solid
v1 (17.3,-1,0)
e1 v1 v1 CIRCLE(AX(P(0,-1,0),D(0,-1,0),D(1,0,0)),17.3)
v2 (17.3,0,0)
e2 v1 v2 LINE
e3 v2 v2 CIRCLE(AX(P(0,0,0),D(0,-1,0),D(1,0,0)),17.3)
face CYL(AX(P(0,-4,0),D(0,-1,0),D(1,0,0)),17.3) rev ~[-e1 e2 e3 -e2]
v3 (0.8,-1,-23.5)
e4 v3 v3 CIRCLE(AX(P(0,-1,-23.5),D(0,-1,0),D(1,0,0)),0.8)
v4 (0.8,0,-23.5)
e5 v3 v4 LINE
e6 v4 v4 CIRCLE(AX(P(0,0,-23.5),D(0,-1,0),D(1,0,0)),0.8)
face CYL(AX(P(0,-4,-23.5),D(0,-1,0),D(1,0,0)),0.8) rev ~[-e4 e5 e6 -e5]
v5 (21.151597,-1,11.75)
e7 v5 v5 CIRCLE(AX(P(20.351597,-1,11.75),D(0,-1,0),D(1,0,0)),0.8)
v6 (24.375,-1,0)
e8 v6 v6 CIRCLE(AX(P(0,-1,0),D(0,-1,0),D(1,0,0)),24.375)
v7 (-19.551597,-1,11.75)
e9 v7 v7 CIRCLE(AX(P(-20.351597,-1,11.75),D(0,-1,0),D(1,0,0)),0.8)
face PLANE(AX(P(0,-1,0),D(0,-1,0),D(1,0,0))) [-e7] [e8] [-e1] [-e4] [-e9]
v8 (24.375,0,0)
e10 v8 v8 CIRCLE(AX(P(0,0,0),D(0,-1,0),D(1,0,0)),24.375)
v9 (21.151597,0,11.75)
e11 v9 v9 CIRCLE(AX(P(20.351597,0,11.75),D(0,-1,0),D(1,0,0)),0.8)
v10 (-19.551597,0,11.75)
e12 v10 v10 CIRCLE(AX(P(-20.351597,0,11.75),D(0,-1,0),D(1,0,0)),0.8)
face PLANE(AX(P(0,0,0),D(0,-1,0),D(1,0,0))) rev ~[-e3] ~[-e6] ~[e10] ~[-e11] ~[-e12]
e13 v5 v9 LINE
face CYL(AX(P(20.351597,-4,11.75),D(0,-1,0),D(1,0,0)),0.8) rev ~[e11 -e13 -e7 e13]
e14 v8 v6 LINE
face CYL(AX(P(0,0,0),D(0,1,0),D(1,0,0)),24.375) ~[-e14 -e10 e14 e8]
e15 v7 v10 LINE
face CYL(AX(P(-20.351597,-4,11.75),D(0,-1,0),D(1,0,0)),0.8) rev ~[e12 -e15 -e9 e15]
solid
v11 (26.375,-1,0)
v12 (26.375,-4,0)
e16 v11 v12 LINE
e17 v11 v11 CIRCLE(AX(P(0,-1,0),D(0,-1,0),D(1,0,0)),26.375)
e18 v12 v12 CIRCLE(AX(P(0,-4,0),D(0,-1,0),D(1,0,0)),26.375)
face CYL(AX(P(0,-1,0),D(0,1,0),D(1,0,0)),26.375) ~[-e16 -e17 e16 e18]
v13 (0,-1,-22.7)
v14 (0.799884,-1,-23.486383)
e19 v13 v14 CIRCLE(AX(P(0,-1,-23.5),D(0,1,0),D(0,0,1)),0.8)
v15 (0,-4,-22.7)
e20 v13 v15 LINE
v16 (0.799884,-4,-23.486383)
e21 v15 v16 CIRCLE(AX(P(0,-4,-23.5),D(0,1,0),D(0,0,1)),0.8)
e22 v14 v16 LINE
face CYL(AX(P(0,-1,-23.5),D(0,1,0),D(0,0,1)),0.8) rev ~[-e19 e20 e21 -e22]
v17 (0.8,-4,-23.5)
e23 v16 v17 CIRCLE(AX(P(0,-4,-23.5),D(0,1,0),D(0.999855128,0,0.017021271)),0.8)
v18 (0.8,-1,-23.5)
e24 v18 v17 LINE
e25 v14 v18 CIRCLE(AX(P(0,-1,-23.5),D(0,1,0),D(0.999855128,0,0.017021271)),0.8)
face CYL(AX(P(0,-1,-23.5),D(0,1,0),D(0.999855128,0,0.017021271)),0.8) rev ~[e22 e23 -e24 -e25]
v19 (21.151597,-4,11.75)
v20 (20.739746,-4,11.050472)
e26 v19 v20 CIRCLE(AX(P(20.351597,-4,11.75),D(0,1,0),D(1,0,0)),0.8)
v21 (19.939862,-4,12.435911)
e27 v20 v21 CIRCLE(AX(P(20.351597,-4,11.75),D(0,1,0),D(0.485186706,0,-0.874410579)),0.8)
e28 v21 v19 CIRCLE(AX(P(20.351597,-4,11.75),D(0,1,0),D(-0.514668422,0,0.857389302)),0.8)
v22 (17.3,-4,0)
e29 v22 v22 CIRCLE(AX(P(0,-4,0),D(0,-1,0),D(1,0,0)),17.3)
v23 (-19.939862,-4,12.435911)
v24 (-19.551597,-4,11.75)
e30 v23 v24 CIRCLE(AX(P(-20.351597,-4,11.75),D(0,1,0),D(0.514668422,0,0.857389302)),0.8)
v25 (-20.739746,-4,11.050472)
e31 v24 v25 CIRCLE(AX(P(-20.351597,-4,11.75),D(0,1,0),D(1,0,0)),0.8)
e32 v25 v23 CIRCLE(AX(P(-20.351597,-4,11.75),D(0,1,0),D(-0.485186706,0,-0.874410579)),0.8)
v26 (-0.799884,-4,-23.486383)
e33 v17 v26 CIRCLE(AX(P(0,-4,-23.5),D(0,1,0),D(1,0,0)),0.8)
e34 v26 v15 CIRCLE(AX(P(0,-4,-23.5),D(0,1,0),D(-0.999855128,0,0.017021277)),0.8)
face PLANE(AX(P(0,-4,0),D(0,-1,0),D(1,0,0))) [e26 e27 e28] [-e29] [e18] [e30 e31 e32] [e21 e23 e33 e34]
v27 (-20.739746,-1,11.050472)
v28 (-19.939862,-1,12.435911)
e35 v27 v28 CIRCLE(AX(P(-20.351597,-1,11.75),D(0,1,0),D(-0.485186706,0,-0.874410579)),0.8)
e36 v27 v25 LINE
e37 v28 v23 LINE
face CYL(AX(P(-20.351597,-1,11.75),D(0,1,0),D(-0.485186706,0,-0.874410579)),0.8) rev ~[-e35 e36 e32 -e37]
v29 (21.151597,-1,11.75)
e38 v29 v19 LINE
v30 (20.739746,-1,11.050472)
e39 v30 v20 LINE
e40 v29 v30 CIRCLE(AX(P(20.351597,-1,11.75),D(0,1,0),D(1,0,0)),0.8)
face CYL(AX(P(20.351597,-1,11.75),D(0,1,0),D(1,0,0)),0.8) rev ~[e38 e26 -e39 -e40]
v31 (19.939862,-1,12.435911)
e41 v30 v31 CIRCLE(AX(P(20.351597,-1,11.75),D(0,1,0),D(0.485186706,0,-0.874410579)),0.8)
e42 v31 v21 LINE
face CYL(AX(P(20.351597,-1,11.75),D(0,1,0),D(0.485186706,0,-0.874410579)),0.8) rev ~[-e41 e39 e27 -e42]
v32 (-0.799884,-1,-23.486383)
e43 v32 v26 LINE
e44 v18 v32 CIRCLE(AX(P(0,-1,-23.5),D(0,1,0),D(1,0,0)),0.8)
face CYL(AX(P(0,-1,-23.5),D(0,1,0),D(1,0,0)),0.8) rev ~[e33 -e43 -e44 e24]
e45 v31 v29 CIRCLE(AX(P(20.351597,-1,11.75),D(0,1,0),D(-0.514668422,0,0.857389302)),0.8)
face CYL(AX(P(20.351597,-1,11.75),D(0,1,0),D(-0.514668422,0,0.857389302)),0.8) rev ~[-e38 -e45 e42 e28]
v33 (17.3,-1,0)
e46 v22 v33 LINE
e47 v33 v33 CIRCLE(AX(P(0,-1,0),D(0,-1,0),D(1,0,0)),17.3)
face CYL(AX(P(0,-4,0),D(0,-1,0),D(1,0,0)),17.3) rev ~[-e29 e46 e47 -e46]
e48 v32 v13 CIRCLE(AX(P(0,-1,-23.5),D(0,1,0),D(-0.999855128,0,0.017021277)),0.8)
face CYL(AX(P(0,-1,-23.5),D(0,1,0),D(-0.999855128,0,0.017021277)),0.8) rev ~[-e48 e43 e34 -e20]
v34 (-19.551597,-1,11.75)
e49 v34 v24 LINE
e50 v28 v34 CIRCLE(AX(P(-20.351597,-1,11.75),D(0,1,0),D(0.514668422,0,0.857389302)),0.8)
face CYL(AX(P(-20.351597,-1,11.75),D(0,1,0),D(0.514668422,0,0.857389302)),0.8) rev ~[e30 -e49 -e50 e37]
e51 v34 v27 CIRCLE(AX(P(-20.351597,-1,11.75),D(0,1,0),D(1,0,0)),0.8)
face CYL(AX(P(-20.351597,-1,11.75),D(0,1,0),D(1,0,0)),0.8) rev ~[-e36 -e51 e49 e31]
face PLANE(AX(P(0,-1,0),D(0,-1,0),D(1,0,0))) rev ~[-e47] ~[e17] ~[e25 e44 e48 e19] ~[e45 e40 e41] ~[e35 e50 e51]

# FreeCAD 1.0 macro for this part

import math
import FreeCAD as App
import Part
import Sketcher

doc = App.newDocument("Part")
body = doc.addObject("PartDesign::Body", "Body")

sketch1 = body.newObject("Sketcher::SketchObject", "Sketch")
sketch1.AttachmentSupport = (doc.getObject("XZ_Plane"), [""])
sketch1.MapMode = "FlatFace"
sketch1.addGeometry(Part.Circle(App.Vector(0, 0, 0), App.Vector(0, 0, 1), 24.375), False)
sketch1.addConstraint(Sketcher.Constraint("Coincident", 0, 3, -1, 1))
sketch1.addConstraint(Sketcher.Constraint("Diameter", 0, 48.75))
pad1 = body.newObject("PartDesign::Pad", "Pad")
pad1.Profile = sketch1
pad1.Length = 1

sketch2 = body.newObject("Sketcher::SketchObject", "Sketch001")
sketch2.AttachmentSupport = (doc.getObject("XZ_Plane"), [""])
sketch2.MapMode = "FlatFace"
sketch2.AttachmentOffset = App.Placement(App.Vector(0, 0, 4), App.Rotation())
sketch2.addGeometry(Part.Circle(App.Vector(-20.351597, 11.75, 0), App.Vector(0, 0, 1), 0.8), False)
sketch2.addGeometry(Part.Circle(App.Vector(20.351597, 11.75, 0), App.Vector(0, 0, 1), 0.8), False)
sketch2.addGeometry(Part.Circle(App.Vector(0, -23.5, 0), App.Vector(0, 0, 1), 0.8), False)
sketch2.addConstraint(Sketcher.Constraint("Equal", 0, 1))
sketch2.addConstraint(Sketcher.Constraint("Equal", 1, 2))
sketch2.addConstraint(Sketcher.Constraint("Symmetric", 0, 3, 1, 3, -2))
sketch2.addConstraint(Sketcher.Constraint("PointOnObject", 2, 3, -2))
sketch2.addConstraint(Sketcher.Constraint("Diameter", 0, 1.6))
sketch2.addConstraint(Sketcher.Constraint("DistanceY", 2, 3, -1, 1, 23.5))
sketch2.addConstraint(Sketcher.Constraint("DistanceY", -1, 1, 0, 3, 11.75))
sketch2.addConstraint(Sketcher.Constraint("DistanceX", 0, 3, -1, 1, 20.351597))
pocket1 = body.newObject("PartDesign::Pocket", "Pocket")
pocket1.Profile = sketch2
pocket1.Length = 25
body2 = doc.addObject("PartDesign::Body", "Body001")

sketch3 = body2.newObject("Sketcher::SketchObject", "Sketch002")
sketch3.AttachmentSupport = (doc.getObject("XZ_Plane001"), [""])
sketch3.MapMode = "FlatFace"
sketch3.AttachmentOffset = App.Placement(App.Vector(0, 0, 1), App.Rotation())
sketch3.addGeometry(Part.Circle(App.Vector(0, 0, 0), App.Vector(0, 0, 1), 26.375), False)
sketch3.addGeometry(Part.ArcOfCircle(Part.Circle(App.Vector(0, -23.5, 0), App.Vector(0, 0, 1), 0.8), math.radians(179.024706), math.radians(360)), False)
sketch3.addGeometry(Part.ArcOfCircle(Part.Circle(App.Vector(0, -23.5, 0), App.Vector(0, 0, 1), 0.8), math.radians(90), math.radians(179.024706)), False)
sketch3.addGeometry(Part.ArcOfCircle(Part.Circle(App.Vector(0, -23.5, 0), App.Vector(0, 0, 1), 0.8), math.radians(0.975294), math.radians(90)), False)
sketch3.addGeometry(Part.ArcOfCircle(Part.Circle(App.Vector(0, -23.5, 0), App.Vector(0, 0, 1), 0.8), math.radians(0), math.radians(0.975294)), False)
sketch3.addGeometry(Part.ArcOfCircle(Part.Circle(App.Vector(-20.351597, 11.75, 0), App.Vector(0, 0, 1), 0.8), math.radians(59.024706), math.radians(240.975294)), False)
sketch3.addGeometry(Part.ArcOfCircle(Part.Circle(App.Vector(-20.351597, 11.75, 0), App.Vector(0, 0, 1), 0.8), math.radians(0), math.radians(59.024706)), False)
sketch3.addGeometry(Part.ArcOfCircle(Part.Circle(App.Vector(-20.351597, 11.75, 0), App.Vector(0, 0, 1), 0.8), math.radians(-119.024706), math.radians(0)), False)
sketch3.addGeometry(Part.ArcOfCircle(Part.Circle(App.Vector(20.351597, 11.75, 0), App.Vector(0, 0, 1), 0.8), math.radians(-60.975294), math.radians(0)), False)
sketch3.addGeometry(Part.ArcOfCircle(Part.Circle(App.Vector(20.351597, 11.75, 0), App.Vector(0, 0, 1), 0.8), math.radians(120.975294), math.radians(299.024706)), False)
sketch3.addGeometry(Part.ArcOfCircle(Part.Circle(App.Vector(20.351597, 11.75, 0), App.Vector(0, 0, 1), 0.8), math.radians(0), math.radians(120.975294)), False)
sketch3.addConstraint(Sketcher.Constraint("Tangent", 1, 1, 2, 2))
sketch3.addConstraint(Sketcher.Constraint("Tangent", 2, 1, 3, 2))
sketch3.addConstraint(Sketcher.Constraint("Tangent", 3, 1, 4, 2))
sketch3.addConstraint(Sketcher.Constraint("Tangent", 4, 1, 1, 2))
sketch3.addConstraint(Sketcher.Constraint("Tangent", 5, 1, 6, 2))
sketch3.addConstraint(Sketcher.Constraint("Tangent", 6, 1, 7, 2))
sketch3.addConstraint(Sketcher.Constraint("Tangent", 7, 1, 5, 2))
sketch3.addConstraint(Sketcher.Constraint("Tangent", 8, 1, 9, 2))
sketch3.addConstraint(Sketcher.Constraint("Tangent", 9, 1, 10, 2))
sketch3.addConstraint(Sketcher.Constraint("Tangent", 10, 1, 8, 2))
sketch3.addConstraint(Sketcher.Constraint("Coincident", 0, 3, -1, 1))
sketch3.addConstraint(Sketcher.Constraint("Equal", 1, 2))
sketch3.addConstraint(Sketcher.Constraint("Equal", 4, 5))
sketch3.addConstraint(Sketcher.Constraint("Equal", 7, 8))
sketch3.addConstraint(Sketcher.Constraint("Symmetric", 5, 3, 8, 3, -2))
sketch3.addConstraint(Sketcher.Constraint("Symmetric", 1, 1, 3, 1, -2))
sketch3.addConstraint(Sketcher.Constraint("PointOnObject", 2, 1, -2))
sketch3.addConstraint(Sketcher.Constraint("Horizontal", 3, 3, 4, 1))
sketch3.addConstraint(Sketcher.Constraint("Horizontal", 10, 3, 6, 1))
sketch3.addConstraint(Sketcher.Constraint("Horizontal", 7, 1, 8, 1))
sketch3.addConstraint(Sketcher.Constraint("Horizontal", 5, 1, 9, 1))
sketch3.addConstraint(Sketcher.Constraint("Horizontal", 6, 1, 10, 1))
sketch3.addConstraint(Sketcher.Constraint("Radius", 1, 0.8))
sketch3.addConstraint(Sketcher.Constraint("Diameter", 0, 52.75))
sketch3.addConstraint(Sketcher.Constraint("DistanceY", 1, 3, -1, 1, 23.5))
sketch3.addConstraint(Sketcher.Constraint("DistanceY", -1, 1, 5, 3, 11.75))
sketch3.addConstraint(Sketcher.Constraint("DistanceY", -1, 1, 5, 1, 12.435911))
sketch3.addConstraint(Sketcher.Constraint("DistanceY", -1, 1, 7, 1, 11.050472))
sketch3.addConstraint(Sketcher.Constraint("DistanceX", 5, 1, 8, 3, 40.291459))
sketch3.addConstraint(Sketcher.Constraint("DistanceX", 1, 1, -1, 1, 0.799884))
pad2 = body2.newObject("PartDesign::Pad", "Pad001")
pad2.Profile = sketch3
pad2.Length = 3
body3 = doc.addObject("PartDesign::Body", "Body002")

sketch4 = body3.newObject("Sketcher::SketchObject", "Sketch003")
sketch4.AttachmentSupport = (doc.getObject("XZ_Plane002"), [""])
sketch4.MapMode = "FlatFace"
sketch4.AttachmentOffset = App.Placement(App.Vector(0, 0, 4), App.Rotation())
sketch4.addGeometry(Part.Circle(App.Vector(0, 0, 0), App.Vector(0, 0, 1), 17.3), False)
sketch4.addConstraint(Sketcher.Constraint("Coincident", 0, 3, -1, 1))
sketch4.addConstraint(Sketcher.Constraint("Diameter", 0, 34.6))
pad3 = body3.newObject("PartDesign::Pad", "Pad002")
pad3.Profile = sketch4
pad3.Length = 25
pad3.Reversed = True
doc.recompute()

body4 = doc.addObject("PartDesign::Body", "Body003")
body4.BaseFeature = body3
boolean = body.newObject("PartDesign::Boolean", "Boolean")
boolean.Type = "Cut"
boolean.addObjects([body4])
doc.recompute()

boolean2 = body2.newObject("PartDesign::Boolean", "Boolean001")
boolean2.Type = "Cut"
boolean2.addObjects([body3])

doc.recompute()
